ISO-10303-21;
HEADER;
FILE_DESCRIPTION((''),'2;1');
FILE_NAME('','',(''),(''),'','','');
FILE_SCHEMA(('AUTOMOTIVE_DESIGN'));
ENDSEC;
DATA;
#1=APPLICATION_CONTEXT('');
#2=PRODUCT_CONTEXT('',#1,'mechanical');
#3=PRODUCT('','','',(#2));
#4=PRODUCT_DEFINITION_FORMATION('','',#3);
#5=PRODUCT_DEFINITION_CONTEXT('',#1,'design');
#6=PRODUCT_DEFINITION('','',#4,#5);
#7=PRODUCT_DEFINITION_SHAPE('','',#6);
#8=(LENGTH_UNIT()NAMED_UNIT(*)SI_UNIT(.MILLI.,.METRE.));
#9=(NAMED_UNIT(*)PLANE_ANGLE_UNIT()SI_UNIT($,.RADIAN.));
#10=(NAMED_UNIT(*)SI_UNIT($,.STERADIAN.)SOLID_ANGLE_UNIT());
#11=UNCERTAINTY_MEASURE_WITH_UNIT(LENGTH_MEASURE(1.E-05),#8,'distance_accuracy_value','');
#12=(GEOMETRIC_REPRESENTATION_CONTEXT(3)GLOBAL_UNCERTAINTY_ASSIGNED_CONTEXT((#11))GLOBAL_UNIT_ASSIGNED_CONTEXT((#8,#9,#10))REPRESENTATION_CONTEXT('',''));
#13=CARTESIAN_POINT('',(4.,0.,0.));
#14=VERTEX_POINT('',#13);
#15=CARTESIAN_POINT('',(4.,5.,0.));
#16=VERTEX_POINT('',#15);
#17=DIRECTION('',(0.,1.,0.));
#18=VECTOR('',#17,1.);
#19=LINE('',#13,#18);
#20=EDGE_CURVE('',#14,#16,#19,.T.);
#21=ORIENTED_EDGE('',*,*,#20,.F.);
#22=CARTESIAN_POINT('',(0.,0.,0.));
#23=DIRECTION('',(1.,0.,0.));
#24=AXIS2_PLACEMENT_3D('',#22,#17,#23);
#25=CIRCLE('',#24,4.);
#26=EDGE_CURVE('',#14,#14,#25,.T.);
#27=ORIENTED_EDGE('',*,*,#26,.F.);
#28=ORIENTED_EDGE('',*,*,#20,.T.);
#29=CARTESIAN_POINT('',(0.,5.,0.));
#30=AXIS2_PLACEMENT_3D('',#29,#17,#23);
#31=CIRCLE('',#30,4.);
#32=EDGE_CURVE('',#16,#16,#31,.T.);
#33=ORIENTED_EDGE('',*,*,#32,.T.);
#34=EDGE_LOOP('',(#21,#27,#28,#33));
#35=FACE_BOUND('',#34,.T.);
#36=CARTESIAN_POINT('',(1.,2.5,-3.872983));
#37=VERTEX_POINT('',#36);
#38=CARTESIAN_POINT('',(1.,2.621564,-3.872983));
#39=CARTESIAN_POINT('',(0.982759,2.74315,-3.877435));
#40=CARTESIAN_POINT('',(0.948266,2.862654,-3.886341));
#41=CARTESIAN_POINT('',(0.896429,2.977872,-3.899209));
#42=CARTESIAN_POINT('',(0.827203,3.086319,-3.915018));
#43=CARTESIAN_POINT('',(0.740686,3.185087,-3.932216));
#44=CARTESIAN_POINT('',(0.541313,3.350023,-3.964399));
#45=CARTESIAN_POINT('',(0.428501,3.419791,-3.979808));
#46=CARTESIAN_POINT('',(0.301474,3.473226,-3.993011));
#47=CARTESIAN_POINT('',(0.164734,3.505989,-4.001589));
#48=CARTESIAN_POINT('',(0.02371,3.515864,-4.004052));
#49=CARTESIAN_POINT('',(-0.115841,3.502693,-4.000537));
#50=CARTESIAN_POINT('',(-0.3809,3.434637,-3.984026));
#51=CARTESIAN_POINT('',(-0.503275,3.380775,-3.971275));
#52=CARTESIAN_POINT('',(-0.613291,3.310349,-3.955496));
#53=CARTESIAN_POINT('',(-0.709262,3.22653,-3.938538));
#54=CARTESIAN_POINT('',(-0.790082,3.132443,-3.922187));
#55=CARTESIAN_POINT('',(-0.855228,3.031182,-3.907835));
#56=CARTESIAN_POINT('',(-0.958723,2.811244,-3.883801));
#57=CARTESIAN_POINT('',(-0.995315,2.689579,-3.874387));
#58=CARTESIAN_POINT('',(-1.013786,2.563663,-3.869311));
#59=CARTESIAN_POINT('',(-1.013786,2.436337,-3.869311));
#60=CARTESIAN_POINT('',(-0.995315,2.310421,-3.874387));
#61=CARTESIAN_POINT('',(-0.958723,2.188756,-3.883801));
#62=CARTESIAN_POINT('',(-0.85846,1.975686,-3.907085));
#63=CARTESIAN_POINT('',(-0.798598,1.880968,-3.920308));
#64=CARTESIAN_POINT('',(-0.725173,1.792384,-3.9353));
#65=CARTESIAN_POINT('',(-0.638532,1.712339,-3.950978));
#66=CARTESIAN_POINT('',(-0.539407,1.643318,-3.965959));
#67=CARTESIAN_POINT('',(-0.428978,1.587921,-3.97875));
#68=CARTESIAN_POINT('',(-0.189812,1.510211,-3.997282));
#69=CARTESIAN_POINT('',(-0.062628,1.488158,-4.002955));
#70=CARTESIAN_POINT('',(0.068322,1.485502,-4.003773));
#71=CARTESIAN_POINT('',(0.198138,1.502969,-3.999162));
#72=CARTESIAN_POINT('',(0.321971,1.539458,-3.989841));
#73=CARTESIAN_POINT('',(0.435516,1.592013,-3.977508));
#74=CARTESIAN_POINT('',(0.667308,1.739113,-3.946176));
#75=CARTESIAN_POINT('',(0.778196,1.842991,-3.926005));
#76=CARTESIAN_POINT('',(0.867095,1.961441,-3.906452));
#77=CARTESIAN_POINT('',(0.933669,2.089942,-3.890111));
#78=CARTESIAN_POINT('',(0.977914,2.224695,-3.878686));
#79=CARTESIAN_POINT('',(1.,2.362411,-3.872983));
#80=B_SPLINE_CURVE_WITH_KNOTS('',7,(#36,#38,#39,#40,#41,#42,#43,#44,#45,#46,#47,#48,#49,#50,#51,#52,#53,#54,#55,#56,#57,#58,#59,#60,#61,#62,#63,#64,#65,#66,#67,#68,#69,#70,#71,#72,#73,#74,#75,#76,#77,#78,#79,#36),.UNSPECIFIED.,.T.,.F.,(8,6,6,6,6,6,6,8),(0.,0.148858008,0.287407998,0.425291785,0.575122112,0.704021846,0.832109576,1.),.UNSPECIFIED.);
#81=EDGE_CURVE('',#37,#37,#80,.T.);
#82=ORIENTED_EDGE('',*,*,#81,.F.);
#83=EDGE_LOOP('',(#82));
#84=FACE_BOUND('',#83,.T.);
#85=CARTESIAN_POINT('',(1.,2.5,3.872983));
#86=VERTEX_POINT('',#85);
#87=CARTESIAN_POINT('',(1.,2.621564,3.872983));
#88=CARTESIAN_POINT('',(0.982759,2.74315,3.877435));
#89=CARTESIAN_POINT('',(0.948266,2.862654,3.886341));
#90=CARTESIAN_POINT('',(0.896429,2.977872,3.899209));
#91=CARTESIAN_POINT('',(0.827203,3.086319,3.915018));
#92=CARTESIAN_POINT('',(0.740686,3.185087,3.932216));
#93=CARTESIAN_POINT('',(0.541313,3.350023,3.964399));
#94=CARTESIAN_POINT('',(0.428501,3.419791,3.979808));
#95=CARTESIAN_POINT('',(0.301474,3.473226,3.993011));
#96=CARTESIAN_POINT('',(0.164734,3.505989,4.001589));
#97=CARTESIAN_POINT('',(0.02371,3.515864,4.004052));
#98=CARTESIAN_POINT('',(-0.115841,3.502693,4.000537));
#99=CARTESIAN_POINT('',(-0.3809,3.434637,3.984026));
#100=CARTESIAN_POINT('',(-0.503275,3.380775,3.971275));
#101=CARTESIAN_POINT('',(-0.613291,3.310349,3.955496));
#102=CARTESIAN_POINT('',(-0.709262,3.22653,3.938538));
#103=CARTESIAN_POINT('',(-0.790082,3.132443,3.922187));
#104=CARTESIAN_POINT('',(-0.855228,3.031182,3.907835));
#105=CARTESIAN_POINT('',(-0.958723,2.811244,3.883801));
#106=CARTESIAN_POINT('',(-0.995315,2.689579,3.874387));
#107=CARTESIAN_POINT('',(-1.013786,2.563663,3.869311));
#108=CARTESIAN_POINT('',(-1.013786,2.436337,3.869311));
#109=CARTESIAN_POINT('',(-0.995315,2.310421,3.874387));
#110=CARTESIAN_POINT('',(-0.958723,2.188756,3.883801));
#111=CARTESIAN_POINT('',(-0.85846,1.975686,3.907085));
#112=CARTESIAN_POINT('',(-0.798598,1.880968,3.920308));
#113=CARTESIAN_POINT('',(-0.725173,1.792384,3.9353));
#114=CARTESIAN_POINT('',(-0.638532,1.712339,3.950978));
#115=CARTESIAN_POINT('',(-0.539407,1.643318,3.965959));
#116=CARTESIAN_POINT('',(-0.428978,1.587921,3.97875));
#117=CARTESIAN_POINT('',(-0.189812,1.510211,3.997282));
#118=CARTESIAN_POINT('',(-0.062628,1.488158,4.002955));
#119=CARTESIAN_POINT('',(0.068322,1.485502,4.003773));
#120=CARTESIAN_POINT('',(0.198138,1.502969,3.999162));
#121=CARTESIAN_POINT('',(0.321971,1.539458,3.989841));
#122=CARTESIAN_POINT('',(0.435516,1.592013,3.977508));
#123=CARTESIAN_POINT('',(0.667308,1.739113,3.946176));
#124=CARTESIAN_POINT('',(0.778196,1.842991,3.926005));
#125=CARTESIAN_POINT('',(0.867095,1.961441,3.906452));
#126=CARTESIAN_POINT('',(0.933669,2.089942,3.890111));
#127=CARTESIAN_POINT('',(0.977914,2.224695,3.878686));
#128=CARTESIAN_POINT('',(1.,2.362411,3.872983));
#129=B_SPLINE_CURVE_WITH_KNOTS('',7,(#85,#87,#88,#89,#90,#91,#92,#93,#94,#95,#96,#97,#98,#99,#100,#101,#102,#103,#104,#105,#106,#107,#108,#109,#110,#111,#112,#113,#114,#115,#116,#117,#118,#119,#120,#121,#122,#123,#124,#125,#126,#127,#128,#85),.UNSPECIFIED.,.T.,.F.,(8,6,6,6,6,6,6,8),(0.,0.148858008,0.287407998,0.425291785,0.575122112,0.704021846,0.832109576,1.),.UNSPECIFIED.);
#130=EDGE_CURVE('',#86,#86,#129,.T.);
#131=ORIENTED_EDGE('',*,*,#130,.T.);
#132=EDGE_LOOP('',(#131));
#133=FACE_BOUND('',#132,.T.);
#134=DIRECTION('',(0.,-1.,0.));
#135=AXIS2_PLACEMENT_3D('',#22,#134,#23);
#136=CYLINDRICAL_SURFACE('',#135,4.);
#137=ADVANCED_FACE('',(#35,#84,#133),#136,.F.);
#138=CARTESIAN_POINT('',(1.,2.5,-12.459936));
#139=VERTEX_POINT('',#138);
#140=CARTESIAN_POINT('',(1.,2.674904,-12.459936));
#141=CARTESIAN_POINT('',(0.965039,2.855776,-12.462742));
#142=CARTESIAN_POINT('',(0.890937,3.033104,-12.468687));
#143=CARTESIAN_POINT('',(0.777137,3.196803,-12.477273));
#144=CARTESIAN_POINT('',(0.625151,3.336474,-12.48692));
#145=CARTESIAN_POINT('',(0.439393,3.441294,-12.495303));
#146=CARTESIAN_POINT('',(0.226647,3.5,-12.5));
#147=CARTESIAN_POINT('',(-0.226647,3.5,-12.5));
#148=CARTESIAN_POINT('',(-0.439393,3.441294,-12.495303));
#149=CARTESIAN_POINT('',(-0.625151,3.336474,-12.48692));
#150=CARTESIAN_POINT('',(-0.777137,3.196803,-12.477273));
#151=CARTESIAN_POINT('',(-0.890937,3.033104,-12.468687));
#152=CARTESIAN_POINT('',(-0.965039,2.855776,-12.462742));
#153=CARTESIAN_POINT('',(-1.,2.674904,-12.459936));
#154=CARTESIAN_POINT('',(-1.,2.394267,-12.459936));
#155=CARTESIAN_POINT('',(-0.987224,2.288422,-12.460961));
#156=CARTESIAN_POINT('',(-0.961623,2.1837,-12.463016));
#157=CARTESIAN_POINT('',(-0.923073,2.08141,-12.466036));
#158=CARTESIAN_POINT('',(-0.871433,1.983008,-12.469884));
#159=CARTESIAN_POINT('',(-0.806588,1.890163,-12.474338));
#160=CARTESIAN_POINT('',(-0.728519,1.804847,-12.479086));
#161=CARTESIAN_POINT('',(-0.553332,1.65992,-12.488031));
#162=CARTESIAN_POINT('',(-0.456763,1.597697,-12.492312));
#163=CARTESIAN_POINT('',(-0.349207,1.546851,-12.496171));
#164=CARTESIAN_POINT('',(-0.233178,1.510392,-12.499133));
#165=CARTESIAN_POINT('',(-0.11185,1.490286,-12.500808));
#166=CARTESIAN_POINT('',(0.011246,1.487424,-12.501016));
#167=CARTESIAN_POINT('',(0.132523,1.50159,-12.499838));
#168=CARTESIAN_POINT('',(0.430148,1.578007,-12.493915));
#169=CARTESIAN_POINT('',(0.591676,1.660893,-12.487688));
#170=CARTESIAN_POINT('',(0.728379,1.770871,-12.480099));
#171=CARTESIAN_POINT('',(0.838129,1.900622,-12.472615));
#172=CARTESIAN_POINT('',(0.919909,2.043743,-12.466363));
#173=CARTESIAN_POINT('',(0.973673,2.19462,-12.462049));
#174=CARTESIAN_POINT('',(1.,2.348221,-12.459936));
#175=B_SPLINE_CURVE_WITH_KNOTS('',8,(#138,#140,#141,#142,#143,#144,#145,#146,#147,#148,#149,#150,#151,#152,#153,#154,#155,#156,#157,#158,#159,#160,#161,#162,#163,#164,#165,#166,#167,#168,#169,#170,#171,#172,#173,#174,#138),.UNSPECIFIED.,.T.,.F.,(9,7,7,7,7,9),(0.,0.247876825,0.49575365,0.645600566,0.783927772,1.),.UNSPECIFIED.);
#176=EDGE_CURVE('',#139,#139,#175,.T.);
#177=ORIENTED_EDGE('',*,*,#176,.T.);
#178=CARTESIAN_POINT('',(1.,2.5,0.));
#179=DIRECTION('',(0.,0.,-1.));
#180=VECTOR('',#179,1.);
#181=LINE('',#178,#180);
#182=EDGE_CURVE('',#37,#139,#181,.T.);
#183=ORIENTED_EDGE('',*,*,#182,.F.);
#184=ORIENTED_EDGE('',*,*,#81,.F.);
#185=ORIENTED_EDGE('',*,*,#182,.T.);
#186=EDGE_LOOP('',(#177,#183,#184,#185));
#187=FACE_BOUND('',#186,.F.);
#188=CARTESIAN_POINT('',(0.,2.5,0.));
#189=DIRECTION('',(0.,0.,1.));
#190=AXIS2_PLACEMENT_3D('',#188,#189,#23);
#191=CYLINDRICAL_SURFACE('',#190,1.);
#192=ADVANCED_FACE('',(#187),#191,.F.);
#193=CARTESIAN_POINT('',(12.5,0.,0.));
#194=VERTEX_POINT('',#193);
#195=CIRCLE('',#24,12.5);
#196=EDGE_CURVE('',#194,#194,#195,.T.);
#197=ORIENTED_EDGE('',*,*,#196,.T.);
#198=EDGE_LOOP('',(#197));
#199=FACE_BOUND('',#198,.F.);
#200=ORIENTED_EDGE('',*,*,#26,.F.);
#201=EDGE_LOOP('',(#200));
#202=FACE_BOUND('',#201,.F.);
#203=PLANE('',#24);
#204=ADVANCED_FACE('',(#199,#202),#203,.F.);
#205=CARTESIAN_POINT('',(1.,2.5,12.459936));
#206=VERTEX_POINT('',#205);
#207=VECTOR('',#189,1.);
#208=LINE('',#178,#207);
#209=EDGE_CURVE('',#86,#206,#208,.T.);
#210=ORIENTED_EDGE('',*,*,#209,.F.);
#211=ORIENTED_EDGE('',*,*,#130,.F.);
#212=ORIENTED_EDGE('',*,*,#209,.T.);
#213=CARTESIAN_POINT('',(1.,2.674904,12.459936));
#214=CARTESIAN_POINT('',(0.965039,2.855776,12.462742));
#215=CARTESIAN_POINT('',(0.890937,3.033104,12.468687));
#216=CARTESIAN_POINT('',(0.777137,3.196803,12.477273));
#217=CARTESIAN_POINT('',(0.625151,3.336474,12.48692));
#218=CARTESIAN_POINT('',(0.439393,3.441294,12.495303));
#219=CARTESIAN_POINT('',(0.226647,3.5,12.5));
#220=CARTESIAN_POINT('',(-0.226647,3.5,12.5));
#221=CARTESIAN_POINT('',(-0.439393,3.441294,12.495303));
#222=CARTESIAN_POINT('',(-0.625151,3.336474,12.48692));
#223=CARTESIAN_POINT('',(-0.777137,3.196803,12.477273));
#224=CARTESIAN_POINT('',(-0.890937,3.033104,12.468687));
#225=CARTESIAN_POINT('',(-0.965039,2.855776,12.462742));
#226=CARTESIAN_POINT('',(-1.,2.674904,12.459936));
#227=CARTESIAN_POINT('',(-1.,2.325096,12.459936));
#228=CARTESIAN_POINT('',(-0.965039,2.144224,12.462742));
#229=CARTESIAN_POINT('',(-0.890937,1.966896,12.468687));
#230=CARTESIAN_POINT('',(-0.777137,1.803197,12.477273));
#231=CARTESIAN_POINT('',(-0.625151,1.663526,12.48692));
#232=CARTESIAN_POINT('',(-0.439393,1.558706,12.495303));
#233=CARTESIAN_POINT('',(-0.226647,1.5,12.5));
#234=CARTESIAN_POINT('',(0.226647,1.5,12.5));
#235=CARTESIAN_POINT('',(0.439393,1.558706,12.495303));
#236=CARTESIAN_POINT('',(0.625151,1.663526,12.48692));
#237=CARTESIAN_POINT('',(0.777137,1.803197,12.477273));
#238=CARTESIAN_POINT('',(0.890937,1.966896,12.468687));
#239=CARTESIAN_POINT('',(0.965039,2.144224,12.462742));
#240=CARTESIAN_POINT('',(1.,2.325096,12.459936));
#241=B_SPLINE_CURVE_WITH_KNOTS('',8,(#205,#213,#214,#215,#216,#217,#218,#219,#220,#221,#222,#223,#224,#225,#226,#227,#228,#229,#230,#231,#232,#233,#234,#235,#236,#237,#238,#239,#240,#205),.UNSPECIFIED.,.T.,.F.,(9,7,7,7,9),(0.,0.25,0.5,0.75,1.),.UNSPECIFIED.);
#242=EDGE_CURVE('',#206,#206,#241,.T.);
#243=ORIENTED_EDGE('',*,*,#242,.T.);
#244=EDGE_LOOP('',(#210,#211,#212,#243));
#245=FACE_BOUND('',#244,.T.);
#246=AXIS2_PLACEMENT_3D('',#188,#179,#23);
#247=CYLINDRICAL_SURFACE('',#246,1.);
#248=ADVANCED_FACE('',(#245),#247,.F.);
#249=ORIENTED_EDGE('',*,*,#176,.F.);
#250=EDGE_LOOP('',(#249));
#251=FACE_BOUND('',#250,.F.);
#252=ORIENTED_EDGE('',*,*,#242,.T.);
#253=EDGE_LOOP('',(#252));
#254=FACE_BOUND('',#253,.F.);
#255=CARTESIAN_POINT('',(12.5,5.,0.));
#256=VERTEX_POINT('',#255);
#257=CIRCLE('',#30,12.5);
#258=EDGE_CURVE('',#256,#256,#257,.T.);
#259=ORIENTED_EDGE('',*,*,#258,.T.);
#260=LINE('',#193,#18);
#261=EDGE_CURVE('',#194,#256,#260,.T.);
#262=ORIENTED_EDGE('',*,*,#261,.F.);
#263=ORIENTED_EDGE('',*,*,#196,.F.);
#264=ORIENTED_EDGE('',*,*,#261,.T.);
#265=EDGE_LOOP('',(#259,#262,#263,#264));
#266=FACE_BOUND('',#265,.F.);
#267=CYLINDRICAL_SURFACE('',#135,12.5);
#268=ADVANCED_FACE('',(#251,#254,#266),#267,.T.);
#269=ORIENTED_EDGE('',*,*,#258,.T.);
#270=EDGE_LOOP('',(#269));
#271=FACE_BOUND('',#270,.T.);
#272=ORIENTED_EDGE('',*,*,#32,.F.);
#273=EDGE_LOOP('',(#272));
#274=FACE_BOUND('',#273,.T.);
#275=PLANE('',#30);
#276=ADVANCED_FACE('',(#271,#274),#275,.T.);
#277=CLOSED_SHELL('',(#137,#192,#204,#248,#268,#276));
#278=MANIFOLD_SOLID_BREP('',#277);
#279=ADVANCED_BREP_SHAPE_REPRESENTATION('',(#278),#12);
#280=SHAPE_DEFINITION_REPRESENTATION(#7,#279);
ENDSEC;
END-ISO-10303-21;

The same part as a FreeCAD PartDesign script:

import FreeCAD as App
import Part
import Sketcher

doc = App.newDocument("Part")
body = doc.addObject("PartDesign::Body", "Body")

# Sketch on XZ plane
sketch1 = body.newObject("Sketcher::SketchObject", "Sketch")
sketch1.AttachmentSupport = (doc.getObject("XZ_Plane"), [""])
sketch1.MapMode = "FlatFace"
sketch1.addGeometry([
    Part.Circle(App.Vector(0, 0, 0), App.Vector(0, 0, 1), 12.5),
    Part.Circle(App.Vector(0, 0, 0), App.Vector(0, 0, 1), 4),
], False)
sketch1.addConstraint([
    Sketcher.Constraint("Coincident", 0, 3, -1, 1),
    Sketcher.Constraint("Coincident", 1, 3, -1, 1),
    Sketcher.Constraint("Diameter", 0, 25.0),
    Sketcher.Constraint("Diameter", 1, 8.0),
])
pad1 = body.newObject("PartDesign::Pad", "Pad")
pad1.Profile = sketch1
pad1.Length = 5
pad1.Reversed = True

# Sketch on XY plane
sketch2 = body.newObject("Sketcher::SketchObject", "Sketch001")
sketch2.AttachmentSupport = (doc.getObject("XY_Plane"), [""])
sketch2.MapMode = "FlatFace"
sketch2.addGeometry(Part.Circle(App.Vector(0, 2.5, 0), App.Vector(0, 0, 1), 1), False)
sketch2.addConstraint([
    Sketcher.Constraint("PointOnObject", 0, 3, -2),
    Sketcher.Constraint("Diameter", 0, 2.0),
    Sketcher.Constraint("DistanceY", -1, 1, 0, 3, 2.5),
])
pocket1 = body.newObject("PartDesign::Pocket", "Pocket")
pocket1.Profile = sketch2
pocket1.Type = "ThroughAll"
pocket1.Midplane = True

doc.recompute()
